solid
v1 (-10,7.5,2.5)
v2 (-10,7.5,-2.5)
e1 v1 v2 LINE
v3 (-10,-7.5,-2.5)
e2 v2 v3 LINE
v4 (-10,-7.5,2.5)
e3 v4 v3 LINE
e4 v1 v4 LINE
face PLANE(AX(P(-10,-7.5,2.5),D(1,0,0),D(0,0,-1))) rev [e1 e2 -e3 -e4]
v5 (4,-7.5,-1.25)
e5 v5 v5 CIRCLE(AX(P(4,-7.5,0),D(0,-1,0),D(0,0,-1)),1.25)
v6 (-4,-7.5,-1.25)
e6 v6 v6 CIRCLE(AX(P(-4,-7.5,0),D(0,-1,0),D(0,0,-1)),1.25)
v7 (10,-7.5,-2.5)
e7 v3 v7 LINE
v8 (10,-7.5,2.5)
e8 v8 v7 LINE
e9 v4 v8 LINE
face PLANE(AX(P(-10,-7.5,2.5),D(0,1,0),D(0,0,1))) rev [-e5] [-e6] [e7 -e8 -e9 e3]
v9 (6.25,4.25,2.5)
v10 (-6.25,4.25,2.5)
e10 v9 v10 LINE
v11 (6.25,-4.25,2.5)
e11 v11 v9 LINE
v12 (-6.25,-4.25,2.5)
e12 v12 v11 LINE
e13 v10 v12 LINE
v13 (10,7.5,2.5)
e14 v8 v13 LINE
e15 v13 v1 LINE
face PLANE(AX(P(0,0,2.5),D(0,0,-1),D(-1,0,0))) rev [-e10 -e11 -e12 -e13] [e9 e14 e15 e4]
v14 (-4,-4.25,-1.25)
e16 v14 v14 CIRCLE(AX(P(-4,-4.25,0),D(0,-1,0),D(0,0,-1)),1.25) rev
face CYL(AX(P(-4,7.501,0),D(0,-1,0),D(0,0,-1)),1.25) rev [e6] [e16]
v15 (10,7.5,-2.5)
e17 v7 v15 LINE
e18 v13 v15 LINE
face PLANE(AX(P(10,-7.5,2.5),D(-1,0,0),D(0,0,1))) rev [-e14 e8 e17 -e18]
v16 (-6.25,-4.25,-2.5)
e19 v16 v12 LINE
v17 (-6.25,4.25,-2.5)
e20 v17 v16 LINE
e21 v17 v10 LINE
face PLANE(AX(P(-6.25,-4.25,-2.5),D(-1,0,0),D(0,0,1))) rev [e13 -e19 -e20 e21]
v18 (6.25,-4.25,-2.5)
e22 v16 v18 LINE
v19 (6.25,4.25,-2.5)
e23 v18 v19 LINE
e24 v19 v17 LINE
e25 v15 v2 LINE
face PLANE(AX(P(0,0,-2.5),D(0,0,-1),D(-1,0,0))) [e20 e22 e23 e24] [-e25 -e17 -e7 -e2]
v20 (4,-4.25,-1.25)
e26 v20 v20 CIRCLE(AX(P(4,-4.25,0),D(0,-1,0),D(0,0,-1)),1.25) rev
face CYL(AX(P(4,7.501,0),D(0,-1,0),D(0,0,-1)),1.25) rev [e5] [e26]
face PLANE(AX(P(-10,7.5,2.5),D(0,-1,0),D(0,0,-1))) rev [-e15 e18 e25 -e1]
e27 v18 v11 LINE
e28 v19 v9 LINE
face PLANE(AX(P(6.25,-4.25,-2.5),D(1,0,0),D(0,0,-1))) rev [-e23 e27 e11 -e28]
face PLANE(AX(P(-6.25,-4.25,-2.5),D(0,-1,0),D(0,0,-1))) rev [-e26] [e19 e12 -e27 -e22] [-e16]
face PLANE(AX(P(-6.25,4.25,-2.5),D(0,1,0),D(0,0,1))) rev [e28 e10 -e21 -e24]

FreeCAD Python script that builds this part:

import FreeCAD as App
import Part
import Sketcher
from FreeCAD import Vector
Q = App.Units.Quantity

doc = App.newDocument("Part")
params = doc.addObject("Spreadsheet::Sheet", "Params")
for row, (alias, value) in enumerate([
    ("sketch1_width", "20 mm"),
    ("sketch1_height", "15 mm"),
    ("pad1_length", "5 mm"),
    ("sketch2_width", "12.5 mm"),
    ("sketch2_height", "8.5 mm"),
    ("sketch3_diameter", "2.5 mm"),
    ("sketch4_diameter", "2.5 mm"),
], start=1):
    params.set(f"A{row}", alias)
    params.set(f"B{row}", "=" + value)
    params.setAlias(f"B{row}", alias)

body = doc.addObject("PartDesign::Body", "Body")

sketch1 = body.newObject("Sketcher::SketchObject", "Sketch")
sketch1.AttachmentSupport = (doc.getObject("XY_Plane"), [""])
sketch1.MapMode = "FlatFace"
sketch1.addGeometry(Part.LineSegment(Vector(-10, 8, 0), Vector(-10, -8, 0)), False)
sketch1.addGeometry(Part.LineSegment(Vector(-10, -8, 0), Vector(10, -8, 0)), False)
sketch1.addGeometry(Part.LineSegment(Vector(10, -8, 0), Vector(10, 8, 0)), False)
sketch1.addGeometry(Part.LineSegment(Vector(10, 8, 0), Vector(-10, 8, 0)), False)
sketch1.addConstraint(Sketcher.Constraint("Coincident", 0, 2, 1, 1))
sketch1.addConstraint(Sketcher.Constraint("Coincident", 1, 2, 2, 1))
sketch1.addConstraint(Sketcher.Constraint("Coincident", 2, 2, 3, 1))
sketch1.addConstraint(Sketcher.Constraint("Coincident", 3, 2, 0, 1))
sketch1.addConstraint(Sketcher.Constraint("Vertical", 0))
sketch1.addConstraint(Sketcher.Constraint("Horizontal", 1))
sketch1.addConstraint(Sketcher.Constraint("Vertical", 2))
sketch1.addConstraint(Sketcher.Constraint("Horizontal", 3))
sketch1.addConstraint(Sketcher.Constraint("Symmetric", 0, 2, 2, 2, -1, 1))
sketch1.addConstraint(Sketcher.Constraint("DistanceX", 1, 1, 1, 2, Q("20 mm")))
sketch1.addConstraint(Sketcher.Constraint("DistanceY", 0, 2, 0, 1, Q("15 mm")))
sketch1.setExpression("Constraints[9]", "Params.sketch1_width")
sketch1.setExpression("Constraints[10]", "Params.sketch1_height")
pad1 = body.newObject("PartDesign::Pad", "Pad")
pad1.Profile = sketch1
pad1.setExpression("Length", "Params.pad1_length")
pad1.Midplane = True

sketch2 = body.newObject("Sketcher::SketchObject", "Sketch001")
sketch2.AttachmentSupport = (doc.getObject("XY_Plane"), [""])
sketch2.MapMode = "FlatFace"
sketch2.AttachmentOffset = App.Placement(Vector(0, 0, 2.5), App.Rotation())
sketch2.addGeometry(Part.LineSegment(Vector(-6, 4, 0), Vector(-6, -4, 0)), False)
sketch2.addGeometry(Part.LineSegment(Vector(-6, -4, 0), Vector(6, -4, 0)), False)
sketch2.addGeometry(Part.LineSegment(Vector(6, -4, 0), Vector(6, 4, 0)), False)
sketch2.addGeometry(Part.LineSegment(Vector(6, 4, 0), Vector(-6, 4, 0)), False)
sketch2.addConstraint(Sketcher.Constraint("Coincident", 0, 2, 1, 1))
sketch2.addConstraint(Sketcher.Constraint("Coincident", 1, 2, 2, 1))
sketch2.addConstraint(Sketcher.Constraint("Coincident", 2, 2, 3, 1))
sketch2.addConstraint(Sketcher.Constraint("Coincident", 3, 2, 0, 1))
sketch2.addConstraint(Sketcher.Constraint("Vertical", 0))
sketch2.addConstraint(Sketcher.Constraint("Horizontal", 1))
sketch2.addConstraint(Sketcher.Constraint("Vertical", 2))
sketch2.addConstraint(Sketcher.Constraint("Horizontal", 3))
sketch2.addConstraint(Sketcher.Constraint("Symmetric", 0, 2, 2, 2, -1, 1))
sketch2.addConstraint(Sketcher.Constraint("DistanceX", 1, 1, 1, 2, Q("12.5 mm")))
sketch2.addConstraint(Sketcher.Constraint("DistanceY", 0, 2, 0, 1, Q("8.5 mm")))
sketch2.setExpression("Constraints[9]", "Params.sketch2_width")
sketch2.setExpression("Constraints[10]", "Params.sketch2_height")
pocket1 = body.newObject("PartDesign::Pocket", "Pocket")
pocket1.Profile = sketch2
pocket1.Type = "ThroughAll"

sketch3 = body.newObject("Sketcher::SketchObject", "Sketch002")
sketch3.AttachmentSupport = (doc.getObject("XZ_Plane"), [""])
sketch3.MapMode = "FlatFace"
sketch3.AttachmentOffset = App.Placement(Vector(0, 0, 7.5), App.Rotation())
sketch3.addGeometry(Part.Circle(Vector(-4, 0, 0), Vector(0, 0, 1), 1.2), False)
sketch3.addConstraint(Sketcher.Constraint("PointOnObject", 0, 3, -1))
sketch3.addConstraint(Sketcher.Constraint("Diameter", 0, Q("2.5 mm")))
sketch3.addConstraint(Sketcher.Constraint("DistanceX", 0, 3, -1, 1, Q("4 mm")))
sketch3.setExpression("Constraints[1]", "Params.sketch3_diameter")
pocket2 = body.newObject("PartDesign::Pocket", "Pocket001")
pocket2.Profile = sketch3
pocket2.Type = "UpToFirst"

sketch4 = body.newObject("Sketcher::SketchObject", "Sketch003")
sketch4.AttachmentSupport = (doc.getObject("XZ_Plane"), [""])
sketch4.MapMode = "FlatFace"
sketch4.AttachmentOffset = App.Placement(Vector(0, 0, 7.5), App.Rotation())
sketch4.addGeometry(Part.Circle(Vector(4, 0, 0), Vector(0, 0, 1), 1.2), False)
sketch4.addConstraint(Sketcher.Constraint("PointOnObject", 0, 3, -1))
sketch4.addConstraint(Sketcher.Constraint("Diameter", 0, Q("2.5 mm")))
sketch4.addConstraint(Sketcher.Constraint("DistanceX", -1, 1, 0, 3, Q("4 mm")))
sketch4.setExpression("Constraints[1]", "Params.sketch4_diameter")
pocket3 = body.newObject("PartDesign::Pocket", "Pocket002")
pocket3.Profile = sketch4
pocket3.Type = "UpToFirst"

doc.recompute()
